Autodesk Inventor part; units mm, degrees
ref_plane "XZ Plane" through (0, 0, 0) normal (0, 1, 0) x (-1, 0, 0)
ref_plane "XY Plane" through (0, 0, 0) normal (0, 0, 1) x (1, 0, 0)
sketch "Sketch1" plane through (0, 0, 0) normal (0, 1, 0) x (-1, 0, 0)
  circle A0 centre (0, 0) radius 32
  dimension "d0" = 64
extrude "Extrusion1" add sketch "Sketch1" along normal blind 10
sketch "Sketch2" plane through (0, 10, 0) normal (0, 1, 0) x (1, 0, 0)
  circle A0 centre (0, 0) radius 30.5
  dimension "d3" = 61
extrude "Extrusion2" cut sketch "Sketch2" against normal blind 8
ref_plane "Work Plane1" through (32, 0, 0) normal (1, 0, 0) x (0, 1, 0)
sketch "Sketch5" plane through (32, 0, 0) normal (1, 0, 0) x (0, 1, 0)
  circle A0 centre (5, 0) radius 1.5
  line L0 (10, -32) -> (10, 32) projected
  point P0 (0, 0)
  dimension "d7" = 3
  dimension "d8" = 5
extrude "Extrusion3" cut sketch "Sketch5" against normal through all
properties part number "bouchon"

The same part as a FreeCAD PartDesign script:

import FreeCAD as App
import Part
import Sketcher

doc = App.newDocument("Part")
body = doc.addObject("PartDesign::Body", "Body")

# Sketch on XZ plane
sketch1 = body.newObject("Sketcher::SketchObject", "Sketch")
sketch1.AttachmentSupport = (doc.getObject("XZ_Plane"), [""])
sketch1.MapMode = "FlatFace"
sketch1.addGeometry(Part.Circle(App.Vector(0, 0, 0), App.Vector(0, 0, 1), 32), False)
sketch1.addConstraint([
    Sketcher.Constraint("Coincident", 0, 3, -1, 1),
    Sketcher.Constraint("Diameter", 0, 64.0),
])
pad1 = body.newObject("PartDesign::Pad", "Pad")
pad1.Profile = sketch1
pad1.Length = 10
pad1.Reversed = True

# Sketch on XZ plane
sketch2 = body.newObject("Sketcher::SketchObject", "Sketch001")
sketch2.AttachmentSupport = (doc.getObject("XZ_Plane"), [""])
sketch2.MapMode = "FlatFace"
sketch2.AttachmentOffset = App.Placement(App.Vector(0, 0, -10), App.Rotation())
sketch2.addGeometry(Part.Circle(App.Vector(0, 0, 0), App.Vector(0, 0, 1), 30), False)
sketch2.addConstraint([
    Sketcher.Constraint("Coincident", 0, 3, -1, 1),
    Sketcher.Constraint("Diameter", 0, 61.0),
])
pocket1 = body.newObject("PartDesign::Pocket", "Pocket")
pocket1.Profile = sketch2
pocket1.Length = 8
pocket1.Reversed = True

# Sketch on YZ plane
sketch3 = body.newObject("Sketcher::SketchObject", "Sketch002")
sketch3.AttachmentSupport = (doc.getObject("YZ_Plane"), [""])
sketch3.MapMode = "FlatFace"
sketch3.AttachmentOffset = App.Placement(App.Vector(0, 0, 32), App.Rotation())
sketch3.addGeometry(Part.Circle(App.Vector(5, 0, 0), App.Vector(0, 0, 1), 1.5), False)
sketch3.addConstraint([
    Sketcher.Constraint("PointOnObject", 0, 3, -1),
    Sketcher.Constraint("Diameter", 0, 3.0),
    Sketcher.Constraint("DistanceX", -1, 1, 0, 3, 5.0),
])
pocket2 = body.newObject("PartDesign::Pocket", "Pocket001")
pocket2.Profile = sketch3
pocket2.Type = "ThroughAll"

doc.recompute()
